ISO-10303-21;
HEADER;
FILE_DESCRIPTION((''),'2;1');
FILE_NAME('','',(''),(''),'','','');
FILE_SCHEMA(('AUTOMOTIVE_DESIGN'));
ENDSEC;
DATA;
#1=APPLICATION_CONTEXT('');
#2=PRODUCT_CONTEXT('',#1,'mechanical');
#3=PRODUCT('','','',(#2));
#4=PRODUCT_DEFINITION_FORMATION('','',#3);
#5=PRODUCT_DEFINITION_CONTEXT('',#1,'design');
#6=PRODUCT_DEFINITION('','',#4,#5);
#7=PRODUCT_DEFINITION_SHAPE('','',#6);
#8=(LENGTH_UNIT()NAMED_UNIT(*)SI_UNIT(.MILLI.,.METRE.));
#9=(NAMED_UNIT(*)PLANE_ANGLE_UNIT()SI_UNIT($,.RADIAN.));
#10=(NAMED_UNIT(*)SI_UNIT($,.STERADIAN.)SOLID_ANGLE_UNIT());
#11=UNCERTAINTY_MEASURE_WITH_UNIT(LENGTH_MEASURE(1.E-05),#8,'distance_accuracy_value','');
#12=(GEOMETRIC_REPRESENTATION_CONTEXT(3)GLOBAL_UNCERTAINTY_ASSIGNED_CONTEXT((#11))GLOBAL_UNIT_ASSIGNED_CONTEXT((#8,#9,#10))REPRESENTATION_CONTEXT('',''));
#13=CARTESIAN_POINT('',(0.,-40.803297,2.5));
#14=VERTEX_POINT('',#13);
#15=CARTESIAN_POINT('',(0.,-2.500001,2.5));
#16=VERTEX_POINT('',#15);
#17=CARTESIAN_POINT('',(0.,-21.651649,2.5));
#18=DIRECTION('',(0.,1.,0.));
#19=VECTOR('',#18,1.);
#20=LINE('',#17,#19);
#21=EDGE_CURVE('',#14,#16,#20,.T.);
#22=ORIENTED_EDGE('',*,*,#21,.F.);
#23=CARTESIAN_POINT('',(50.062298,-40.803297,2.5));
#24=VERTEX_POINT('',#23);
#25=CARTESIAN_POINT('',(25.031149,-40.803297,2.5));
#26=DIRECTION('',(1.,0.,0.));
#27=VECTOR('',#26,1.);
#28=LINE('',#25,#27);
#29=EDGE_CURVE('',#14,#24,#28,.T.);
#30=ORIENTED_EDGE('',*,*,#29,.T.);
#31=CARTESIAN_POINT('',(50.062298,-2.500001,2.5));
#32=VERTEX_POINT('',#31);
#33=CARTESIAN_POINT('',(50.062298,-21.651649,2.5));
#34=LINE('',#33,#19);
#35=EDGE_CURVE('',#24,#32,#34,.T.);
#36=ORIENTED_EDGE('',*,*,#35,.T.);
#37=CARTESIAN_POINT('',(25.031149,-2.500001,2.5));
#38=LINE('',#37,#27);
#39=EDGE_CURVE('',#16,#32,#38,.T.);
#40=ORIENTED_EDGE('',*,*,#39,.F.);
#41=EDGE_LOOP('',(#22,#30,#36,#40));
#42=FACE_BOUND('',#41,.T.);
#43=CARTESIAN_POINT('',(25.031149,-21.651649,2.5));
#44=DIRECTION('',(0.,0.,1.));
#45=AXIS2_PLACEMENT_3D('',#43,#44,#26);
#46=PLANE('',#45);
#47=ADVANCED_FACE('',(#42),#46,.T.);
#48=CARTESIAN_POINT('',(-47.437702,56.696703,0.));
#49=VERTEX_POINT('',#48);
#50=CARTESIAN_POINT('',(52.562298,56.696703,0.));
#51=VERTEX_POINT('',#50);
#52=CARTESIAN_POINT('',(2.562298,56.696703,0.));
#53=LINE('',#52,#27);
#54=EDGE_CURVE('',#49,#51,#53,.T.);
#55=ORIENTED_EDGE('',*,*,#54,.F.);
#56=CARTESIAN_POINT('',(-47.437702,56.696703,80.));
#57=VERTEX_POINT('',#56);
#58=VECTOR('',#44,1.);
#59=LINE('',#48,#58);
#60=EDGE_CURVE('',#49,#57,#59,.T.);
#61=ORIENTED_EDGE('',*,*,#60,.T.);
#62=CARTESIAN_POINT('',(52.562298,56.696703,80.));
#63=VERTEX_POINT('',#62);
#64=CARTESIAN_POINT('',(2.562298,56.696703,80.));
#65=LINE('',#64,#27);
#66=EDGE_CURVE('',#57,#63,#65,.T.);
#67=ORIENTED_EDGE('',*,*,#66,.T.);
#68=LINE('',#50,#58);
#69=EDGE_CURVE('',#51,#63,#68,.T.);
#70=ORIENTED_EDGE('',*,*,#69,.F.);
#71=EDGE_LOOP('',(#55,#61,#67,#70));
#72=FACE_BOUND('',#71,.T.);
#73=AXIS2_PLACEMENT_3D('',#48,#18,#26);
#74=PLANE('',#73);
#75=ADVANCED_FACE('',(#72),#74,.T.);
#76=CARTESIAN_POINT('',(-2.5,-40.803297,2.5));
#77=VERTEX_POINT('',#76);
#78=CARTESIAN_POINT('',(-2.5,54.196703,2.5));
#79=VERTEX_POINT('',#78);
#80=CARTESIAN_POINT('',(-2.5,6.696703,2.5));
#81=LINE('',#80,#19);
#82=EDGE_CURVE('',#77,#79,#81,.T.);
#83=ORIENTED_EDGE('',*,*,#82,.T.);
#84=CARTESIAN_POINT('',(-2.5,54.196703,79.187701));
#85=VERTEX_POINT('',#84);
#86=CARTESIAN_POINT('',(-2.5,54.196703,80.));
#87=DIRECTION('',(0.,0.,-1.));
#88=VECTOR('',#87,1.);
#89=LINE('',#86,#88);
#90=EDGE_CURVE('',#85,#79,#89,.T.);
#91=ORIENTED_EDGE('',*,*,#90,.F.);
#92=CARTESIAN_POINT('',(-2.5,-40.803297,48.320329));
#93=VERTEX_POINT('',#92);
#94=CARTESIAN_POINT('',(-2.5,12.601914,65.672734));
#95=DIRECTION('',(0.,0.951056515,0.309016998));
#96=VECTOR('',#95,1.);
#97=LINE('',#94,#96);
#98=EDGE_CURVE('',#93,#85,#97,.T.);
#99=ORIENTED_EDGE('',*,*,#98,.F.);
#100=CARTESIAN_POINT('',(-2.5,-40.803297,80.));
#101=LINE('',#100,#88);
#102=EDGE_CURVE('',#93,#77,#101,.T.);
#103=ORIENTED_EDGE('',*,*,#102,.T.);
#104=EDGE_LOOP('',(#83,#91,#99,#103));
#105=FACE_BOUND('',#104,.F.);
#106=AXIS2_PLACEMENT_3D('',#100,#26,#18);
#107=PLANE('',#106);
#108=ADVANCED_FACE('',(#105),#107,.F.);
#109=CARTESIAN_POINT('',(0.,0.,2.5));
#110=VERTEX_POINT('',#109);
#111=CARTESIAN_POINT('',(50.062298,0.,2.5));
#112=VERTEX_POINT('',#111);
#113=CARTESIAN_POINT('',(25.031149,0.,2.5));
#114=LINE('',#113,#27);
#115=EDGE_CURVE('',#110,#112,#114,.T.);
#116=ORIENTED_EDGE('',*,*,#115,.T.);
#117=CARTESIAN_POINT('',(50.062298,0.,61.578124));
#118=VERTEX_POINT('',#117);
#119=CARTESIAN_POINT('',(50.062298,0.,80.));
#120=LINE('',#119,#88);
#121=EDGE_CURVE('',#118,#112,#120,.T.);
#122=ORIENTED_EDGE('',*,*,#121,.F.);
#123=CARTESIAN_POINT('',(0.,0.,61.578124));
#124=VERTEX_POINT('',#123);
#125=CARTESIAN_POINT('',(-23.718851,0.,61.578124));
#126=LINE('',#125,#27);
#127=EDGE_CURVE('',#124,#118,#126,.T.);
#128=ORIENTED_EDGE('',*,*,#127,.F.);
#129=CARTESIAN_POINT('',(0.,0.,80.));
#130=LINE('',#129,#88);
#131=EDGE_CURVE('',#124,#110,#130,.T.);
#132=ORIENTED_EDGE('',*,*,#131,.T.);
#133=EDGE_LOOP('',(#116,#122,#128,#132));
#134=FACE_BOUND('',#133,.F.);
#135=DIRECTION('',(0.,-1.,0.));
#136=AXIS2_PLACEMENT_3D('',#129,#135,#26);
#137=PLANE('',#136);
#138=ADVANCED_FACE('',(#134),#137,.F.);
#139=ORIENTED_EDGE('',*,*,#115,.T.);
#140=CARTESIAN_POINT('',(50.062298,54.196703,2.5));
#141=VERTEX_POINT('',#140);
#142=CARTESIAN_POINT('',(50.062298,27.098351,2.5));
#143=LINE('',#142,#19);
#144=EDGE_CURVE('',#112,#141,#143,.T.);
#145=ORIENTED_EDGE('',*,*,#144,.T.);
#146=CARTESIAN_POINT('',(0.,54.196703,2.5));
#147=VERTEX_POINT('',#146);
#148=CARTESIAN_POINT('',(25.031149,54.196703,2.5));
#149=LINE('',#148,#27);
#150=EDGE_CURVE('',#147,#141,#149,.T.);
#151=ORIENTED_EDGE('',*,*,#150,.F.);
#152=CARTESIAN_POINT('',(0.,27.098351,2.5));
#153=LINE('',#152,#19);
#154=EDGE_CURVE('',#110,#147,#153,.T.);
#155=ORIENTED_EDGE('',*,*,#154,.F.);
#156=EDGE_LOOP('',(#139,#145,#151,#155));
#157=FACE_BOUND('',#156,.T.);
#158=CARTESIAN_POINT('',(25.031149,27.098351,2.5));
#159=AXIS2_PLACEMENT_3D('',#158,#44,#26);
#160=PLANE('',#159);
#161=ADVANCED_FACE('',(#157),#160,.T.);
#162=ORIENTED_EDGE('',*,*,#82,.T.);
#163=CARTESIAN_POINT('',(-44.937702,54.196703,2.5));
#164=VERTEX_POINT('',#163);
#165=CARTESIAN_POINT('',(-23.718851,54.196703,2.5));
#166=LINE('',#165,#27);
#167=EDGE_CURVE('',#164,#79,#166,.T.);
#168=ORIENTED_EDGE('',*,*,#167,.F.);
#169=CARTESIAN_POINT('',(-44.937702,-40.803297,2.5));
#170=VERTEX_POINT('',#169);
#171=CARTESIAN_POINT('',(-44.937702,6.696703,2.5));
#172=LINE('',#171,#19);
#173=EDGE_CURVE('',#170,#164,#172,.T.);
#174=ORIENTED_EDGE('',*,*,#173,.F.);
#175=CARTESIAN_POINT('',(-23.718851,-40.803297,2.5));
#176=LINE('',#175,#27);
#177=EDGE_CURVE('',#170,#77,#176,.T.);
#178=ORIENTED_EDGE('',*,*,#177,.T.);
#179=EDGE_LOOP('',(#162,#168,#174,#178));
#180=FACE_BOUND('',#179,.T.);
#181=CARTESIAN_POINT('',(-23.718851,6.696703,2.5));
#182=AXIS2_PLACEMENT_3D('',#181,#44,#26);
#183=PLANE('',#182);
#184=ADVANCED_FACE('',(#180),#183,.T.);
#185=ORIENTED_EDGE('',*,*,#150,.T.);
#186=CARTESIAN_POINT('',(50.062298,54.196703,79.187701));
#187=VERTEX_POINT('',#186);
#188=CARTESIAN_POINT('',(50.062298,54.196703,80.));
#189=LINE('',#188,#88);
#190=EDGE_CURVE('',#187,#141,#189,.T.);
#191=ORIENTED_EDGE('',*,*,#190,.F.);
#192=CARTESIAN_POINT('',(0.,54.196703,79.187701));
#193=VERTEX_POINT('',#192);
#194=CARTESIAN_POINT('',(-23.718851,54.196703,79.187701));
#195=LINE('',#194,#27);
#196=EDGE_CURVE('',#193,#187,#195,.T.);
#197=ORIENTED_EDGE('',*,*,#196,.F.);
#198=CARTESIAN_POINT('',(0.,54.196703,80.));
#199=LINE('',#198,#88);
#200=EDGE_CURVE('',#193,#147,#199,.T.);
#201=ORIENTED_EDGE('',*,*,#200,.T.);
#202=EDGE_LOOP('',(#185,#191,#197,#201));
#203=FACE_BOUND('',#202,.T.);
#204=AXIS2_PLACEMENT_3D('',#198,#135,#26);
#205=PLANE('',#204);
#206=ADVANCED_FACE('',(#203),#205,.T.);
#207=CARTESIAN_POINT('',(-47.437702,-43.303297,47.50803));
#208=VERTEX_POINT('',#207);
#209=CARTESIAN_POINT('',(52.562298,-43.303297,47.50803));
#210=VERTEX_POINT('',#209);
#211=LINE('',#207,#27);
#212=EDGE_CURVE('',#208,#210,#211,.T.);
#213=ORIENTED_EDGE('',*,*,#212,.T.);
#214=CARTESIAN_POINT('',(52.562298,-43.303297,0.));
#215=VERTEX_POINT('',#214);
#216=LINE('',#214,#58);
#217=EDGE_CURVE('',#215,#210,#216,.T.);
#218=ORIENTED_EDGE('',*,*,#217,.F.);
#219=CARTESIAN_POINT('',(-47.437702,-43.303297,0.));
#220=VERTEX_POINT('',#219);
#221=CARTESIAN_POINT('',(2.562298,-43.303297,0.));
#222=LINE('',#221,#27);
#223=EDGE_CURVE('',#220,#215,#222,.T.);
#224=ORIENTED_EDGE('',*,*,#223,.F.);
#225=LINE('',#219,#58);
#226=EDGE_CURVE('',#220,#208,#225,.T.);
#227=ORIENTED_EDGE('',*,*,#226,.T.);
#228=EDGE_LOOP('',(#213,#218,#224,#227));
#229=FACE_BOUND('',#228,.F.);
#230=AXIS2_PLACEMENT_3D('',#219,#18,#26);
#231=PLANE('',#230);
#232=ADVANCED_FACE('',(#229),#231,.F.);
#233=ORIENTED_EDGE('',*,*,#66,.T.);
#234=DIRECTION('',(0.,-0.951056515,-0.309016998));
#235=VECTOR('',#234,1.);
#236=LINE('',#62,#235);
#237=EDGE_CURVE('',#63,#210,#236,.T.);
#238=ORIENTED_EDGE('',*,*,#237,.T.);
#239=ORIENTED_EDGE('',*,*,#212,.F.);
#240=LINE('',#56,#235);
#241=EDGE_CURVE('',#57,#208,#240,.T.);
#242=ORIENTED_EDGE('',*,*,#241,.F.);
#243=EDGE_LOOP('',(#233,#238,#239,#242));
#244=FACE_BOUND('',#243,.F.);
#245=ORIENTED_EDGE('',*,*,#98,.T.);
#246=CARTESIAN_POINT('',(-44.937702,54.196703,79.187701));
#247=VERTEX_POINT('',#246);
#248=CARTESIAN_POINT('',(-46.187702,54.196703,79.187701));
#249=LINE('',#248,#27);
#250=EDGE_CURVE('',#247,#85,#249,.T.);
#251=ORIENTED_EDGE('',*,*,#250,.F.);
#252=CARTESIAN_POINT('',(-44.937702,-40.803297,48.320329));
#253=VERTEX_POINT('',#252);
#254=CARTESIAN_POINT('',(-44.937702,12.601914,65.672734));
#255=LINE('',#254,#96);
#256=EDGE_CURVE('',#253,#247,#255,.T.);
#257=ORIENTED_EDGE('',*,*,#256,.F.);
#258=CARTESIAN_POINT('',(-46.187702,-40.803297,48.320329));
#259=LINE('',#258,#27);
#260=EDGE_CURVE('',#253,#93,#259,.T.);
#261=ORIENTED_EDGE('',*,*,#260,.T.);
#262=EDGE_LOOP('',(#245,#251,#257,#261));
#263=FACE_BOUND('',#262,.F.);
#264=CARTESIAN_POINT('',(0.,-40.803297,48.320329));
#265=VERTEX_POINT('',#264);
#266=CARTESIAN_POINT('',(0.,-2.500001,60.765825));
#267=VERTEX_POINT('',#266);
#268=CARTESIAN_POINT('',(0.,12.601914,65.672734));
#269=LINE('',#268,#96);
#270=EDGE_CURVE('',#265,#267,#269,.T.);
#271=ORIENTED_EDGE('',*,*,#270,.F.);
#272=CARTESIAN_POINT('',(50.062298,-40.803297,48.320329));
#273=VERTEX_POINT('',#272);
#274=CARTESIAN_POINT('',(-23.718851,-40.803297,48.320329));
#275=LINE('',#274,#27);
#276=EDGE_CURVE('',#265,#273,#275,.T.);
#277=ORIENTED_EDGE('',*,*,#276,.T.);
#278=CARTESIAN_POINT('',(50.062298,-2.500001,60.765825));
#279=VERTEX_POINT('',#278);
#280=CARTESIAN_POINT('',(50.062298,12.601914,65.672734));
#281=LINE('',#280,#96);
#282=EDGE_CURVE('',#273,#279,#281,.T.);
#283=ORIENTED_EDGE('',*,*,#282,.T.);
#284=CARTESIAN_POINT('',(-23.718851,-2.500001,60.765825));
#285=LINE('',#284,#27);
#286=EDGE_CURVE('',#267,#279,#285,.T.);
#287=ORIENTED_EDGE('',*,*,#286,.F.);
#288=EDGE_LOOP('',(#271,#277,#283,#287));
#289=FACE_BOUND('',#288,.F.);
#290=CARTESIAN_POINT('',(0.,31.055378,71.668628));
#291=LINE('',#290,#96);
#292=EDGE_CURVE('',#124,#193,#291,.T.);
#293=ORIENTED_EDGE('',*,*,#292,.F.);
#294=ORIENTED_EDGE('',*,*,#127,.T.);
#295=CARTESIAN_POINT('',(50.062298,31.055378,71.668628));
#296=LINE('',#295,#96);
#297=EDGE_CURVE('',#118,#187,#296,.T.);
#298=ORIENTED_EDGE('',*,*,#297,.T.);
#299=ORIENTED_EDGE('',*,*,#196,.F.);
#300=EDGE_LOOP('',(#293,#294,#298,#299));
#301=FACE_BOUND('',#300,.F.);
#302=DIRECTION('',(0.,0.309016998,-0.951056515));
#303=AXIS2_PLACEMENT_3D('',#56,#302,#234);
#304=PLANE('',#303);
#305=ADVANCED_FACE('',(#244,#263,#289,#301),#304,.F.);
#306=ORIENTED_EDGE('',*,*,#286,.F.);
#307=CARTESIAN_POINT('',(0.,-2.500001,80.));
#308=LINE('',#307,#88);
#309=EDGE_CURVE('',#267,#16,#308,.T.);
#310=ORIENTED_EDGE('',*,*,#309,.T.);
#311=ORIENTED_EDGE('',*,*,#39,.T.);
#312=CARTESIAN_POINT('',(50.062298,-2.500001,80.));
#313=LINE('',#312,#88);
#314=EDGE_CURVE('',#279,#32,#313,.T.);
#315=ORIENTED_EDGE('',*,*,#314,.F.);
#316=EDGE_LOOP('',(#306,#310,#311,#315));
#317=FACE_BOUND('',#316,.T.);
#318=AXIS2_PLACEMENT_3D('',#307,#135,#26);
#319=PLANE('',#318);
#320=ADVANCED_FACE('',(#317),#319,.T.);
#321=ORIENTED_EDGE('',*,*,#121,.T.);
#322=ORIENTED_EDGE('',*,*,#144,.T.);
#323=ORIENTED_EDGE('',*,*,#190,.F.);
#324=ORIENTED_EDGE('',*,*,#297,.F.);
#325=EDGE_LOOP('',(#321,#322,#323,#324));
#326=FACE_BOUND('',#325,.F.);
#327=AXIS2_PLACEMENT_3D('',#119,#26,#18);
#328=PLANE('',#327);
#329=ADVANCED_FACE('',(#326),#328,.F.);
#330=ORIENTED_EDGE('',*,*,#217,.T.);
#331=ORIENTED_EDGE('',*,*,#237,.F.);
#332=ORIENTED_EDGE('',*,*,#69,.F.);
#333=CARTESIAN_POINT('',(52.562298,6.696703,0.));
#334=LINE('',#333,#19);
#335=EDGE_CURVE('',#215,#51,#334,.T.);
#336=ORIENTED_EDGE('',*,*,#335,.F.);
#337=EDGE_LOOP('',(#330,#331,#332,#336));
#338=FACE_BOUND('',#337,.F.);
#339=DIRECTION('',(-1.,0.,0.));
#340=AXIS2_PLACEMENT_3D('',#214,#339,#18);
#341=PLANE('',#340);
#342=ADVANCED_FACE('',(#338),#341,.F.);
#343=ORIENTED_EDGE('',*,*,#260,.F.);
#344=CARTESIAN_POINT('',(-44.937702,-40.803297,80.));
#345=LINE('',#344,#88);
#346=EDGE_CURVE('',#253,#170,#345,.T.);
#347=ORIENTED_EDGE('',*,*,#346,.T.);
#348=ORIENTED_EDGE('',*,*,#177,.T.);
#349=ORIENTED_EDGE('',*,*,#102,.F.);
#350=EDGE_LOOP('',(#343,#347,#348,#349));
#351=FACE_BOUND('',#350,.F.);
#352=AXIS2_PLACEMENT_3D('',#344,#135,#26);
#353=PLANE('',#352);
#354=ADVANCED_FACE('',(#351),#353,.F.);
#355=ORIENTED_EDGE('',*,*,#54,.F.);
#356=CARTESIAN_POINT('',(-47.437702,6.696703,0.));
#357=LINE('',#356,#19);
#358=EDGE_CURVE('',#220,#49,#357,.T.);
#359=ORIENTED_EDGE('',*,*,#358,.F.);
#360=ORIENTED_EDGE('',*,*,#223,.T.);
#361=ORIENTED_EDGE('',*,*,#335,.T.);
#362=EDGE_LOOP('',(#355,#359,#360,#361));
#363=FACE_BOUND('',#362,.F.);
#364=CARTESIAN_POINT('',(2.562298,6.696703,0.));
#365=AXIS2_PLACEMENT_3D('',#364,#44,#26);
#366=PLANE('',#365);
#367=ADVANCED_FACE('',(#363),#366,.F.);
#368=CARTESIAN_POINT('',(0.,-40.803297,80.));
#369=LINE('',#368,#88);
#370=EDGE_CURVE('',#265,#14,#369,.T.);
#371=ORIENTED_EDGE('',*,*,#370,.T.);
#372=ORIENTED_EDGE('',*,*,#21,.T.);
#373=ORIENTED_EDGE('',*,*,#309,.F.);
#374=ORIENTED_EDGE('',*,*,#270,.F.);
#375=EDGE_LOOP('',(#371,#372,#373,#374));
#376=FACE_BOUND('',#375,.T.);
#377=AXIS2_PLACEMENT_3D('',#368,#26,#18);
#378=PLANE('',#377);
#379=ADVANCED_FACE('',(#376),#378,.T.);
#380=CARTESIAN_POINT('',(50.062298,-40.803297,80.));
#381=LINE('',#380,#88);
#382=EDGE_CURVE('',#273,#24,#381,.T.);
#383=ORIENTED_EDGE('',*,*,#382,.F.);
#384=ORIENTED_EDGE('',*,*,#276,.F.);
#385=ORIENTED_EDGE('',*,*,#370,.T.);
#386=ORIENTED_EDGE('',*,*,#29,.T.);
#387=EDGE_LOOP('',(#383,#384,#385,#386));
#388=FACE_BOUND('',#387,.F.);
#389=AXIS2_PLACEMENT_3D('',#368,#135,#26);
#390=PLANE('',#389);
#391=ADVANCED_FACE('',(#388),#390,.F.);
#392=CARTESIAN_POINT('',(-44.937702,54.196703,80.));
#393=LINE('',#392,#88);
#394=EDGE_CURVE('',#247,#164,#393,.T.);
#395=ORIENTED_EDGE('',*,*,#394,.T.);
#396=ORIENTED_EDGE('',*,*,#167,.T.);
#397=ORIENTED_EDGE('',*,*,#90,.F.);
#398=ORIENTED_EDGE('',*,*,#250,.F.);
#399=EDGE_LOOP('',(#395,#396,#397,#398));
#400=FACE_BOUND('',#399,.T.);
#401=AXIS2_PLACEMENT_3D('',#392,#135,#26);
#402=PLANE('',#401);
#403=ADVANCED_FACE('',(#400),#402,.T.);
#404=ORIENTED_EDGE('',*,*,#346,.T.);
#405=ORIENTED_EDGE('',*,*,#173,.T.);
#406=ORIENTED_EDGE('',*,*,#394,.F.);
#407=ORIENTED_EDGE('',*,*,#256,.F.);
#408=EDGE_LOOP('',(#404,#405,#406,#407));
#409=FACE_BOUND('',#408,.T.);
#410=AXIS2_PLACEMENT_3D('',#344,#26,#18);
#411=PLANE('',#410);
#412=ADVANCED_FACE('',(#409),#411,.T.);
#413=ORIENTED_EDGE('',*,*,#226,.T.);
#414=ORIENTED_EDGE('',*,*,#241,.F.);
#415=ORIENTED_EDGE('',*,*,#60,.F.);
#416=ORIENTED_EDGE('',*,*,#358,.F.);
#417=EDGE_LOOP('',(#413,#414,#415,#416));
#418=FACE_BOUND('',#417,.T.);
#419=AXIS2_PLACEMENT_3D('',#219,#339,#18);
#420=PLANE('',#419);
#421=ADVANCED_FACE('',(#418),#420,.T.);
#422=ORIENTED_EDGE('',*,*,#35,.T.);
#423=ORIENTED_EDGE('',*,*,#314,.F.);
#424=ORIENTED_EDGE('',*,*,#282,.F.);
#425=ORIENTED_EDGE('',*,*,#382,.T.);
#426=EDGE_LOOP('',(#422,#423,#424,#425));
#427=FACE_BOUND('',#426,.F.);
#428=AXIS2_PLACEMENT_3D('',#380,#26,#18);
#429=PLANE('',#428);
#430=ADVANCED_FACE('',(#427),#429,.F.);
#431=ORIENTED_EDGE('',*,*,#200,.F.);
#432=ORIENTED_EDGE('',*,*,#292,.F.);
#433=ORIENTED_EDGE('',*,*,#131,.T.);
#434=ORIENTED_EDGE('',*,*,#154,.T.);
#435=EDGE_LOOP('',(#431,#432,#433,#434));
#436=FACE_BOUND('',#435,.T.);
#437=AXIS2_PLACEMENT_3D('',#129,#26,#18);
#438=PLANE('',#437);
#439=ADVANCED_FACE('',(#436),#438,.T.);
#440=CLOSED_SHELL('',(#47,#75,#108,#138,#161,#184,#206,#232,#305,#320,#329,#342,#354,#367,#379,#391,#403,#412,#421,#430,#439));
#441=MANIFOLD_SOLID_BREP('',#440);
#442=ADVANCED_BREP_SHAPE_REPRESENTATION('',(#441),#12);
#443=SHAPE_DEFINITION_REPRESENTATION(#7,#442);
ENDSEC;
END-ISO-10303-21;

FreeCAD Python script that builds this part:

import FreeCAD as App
import Part
import Sketcher
from FreeCAD import Vector
Q = App.Units.Quantity

doc = App.newDocument("Part")
params = doc.addObject("Spreadsheet::Sheet", "Params")
for row, (alias, value) in enumerate([
    ("sketch1_width", "100 mm"),
    ("pad1_length", "80 mm"),
    ("sketch2_height", "95 mm"),
    ("pocket1_length", "77.5 mm"),
    ("sketch3_width", "100 mm"),
    ("pocket2_length", "100 mm"),
], start=1):
    params.set(f"A{row}", alias)
    params.set(f"B{row}", "=" + value)
    params.setAlias(f"B{row}", alias)

body = doc.addObject("PartDesign::Body", "Body")

sketch1 = doc.addObject("Sketcher::SketchObject", "Sketch")
body.addObject(sketch1)
sketch1.AttachmentSupport = (doc.XY_Plane, [""])
sketch1.MapMode = "FlatFace"
sketch1.addGeometry([
    Part.LineSegment(Vector(-47, 57, 0), Vector(-47, -43, 0)),
    Part.LineSegment(Vector(-47, -43, 0), Vector(53, -43, 0)),
    Part.LineSegment(Vector(53, -43, 0), Vector(53, 57, 0)),
    Part.LineSegment(Vector(53, 57, 0), Vector(-47, 57, 0)),
], False)
sketch1.addConstraint([
    Sketcher.Constraint("Coincident", 0, 2, 1, 1),
    Sketcher.Constraint("Coincident", 1, 2, 2, 1),
    Sketcher.Constraint("Coincident", 2, 2, 3, 1),
    Sketcher.Constraint("Coincident", 3, 2, 0, 1),
    Sketcher.Constraint("Vertical", 0),
    Sketcher.Constraint("Horizontal", 1),
    Sketcher.Constraint("Vertical", 2),
    Sketcher.Constraint("Horizontal", 3),
    Sketcher.Constraint("Equal", 3, 0),
    Sketcher.Constraint("DistanceX", 1, 1, 1, 2, 100.0),
    Sketcher.Constraint("DistanceX", 0, 2, -1, 1, 47.437702),
    Sketcher.Constraint("DistanceY", 0, 2, -1, 1, 43.303297),
])
sketch1.setExpression("Constraints[9]", "Params.sketch1_width")
pad1 = doc.addObject("PartDesign::Pad", "Pad")
body.addObject(pad1)
pad1.Profile = sketch1
pad1.setExpression("Length", "Params.pad1_length")

sketch2 = doc.addObject("Sketcher::SketchObject", "Sketch001")
body.addObject(sketch2)
sketch2.AttachmentSupport = (doc.XY_Plane, [""])
sketch2.MapMode = "FlatFace"
sketch2.AttachmentOffset = App.Placement(Vector(0, 0, 80), App.Rotation())
sketch2.addGeometry([
    Part.LineSegment(Vector(-45, 54, 0), Vector(-45, -41, 0)),
    Part.LineSegment(Vector(-45, -41, 0), Vector(-2, -41, 0)),
    Part.LineSegment(Vector(-2, -41, 0), Vector(-2, 54, 0)),
    Part.LineSegment(Vector(-2, 54, 0), Vector(-45, 54, 0)),
    Part.LineSegment(Vector(0, 54, 0), Vector(0, 0, 0)),
    Part.LineSegment(Vector(0, 0, 0), Vector(50, 0, 0)),
    Part.LineSegment(Vector(50, 0, 0), Vector(50, 54, 0)),
    Part.LineSegment(Vector(50, 54, 0), Vector(0, 54, 0)),
    Part.LineSegment(Vector(0, -3, 0), Vector(0, -41, 0)),
    Part.LineSegment(Vector(0, -41, 0), Vector(50, -41, 0)),
    Part.LineSegment(Vector(50, -41, 0), Vector(50, -3, 0)),
    Part.LineSegment(Vector(50, -3, 0), Vector(0, -3, 0)),
], False)
sketch2.addConstraint([
    Sketcher.Constraint("Coincident", 0, 2, 1, 1),
    Sketcher.Constraint("Coincident", 1, 2, 2, 1),
    Sketcher.Constraint("Coincident", 2, 2, 3, 1),
    Sketcher.Constraint("Coincident", 3, 2, 0, 1),
    Sketcher.Constraint("Coincident", 4, 2, 5, 1),
    Sketcher.Constraint("Coincident", 5, 2, 6, 1),
    Sketcher.Constraint("Coincident", 6, 2, 7, 1),
    Sketcher.Constraint("Coincident", 7, 2, 4, 1),
    Sketcher.Constraint("Coincident", 8, 2, 9, 1),
    Sketcher.Constraint("Coincident", 9, 2, 10, 1),
    Sketcher.Constraint("Coincident", 10, 2, 11, 1),
    Sketcher.Constraint("Coincident", 11, 2, 8, 1),
    Sketcher.Constraint("Vertical", 0),
    Sketcher.Constraint("Horizontal", 1),
    Sketcher.Constraint("Vertical", 2),
    Sketcher.Constraint("Horizontal", 3),
    Sketcher.Constraint("Vertical", 4),
    Sketcher.Constraint("Horizontal", 5),
    Sketcher.Constraint("Vertical", 6),
    Sketcher.Constraint("Horizontal", 7),
    Sketcher.Constraint("Vertical", 8),
    Sketcher.Constraint("Horizontal", 9),
    Sketcher.Constraint("Vertical", 10),
    Sketcher.Constraint("Horizontal", 11),
    Sketcher.Constraint("Coincident", 4, 2, -1, 1),
    Sketcher.Constraint("PointOnObject", 8, 2, -2),
    Sketcher.Constraint("Horizontal", 3, 2, 6, 2),
    Sketcher.Constraint("Horizontal", 1, 2, 8, 2),
    Sketcher.Constraint("Vertical", 6, 2, 9, 2),
    Sketcher.Constraint("DistanceY", 0, 2, 0, 1, 95.0),
    Sketcher.Constraint("DistanceX", 0, 2, 5, 2, 95.0),
    Sketcher.Constraint("DistanceX", 1, 2, -1, 1, 2.5),
    Sketcher.Constraint("DistanceY", 10, 2, -1, 1, 2.500001),
    Sketcher.Constraint("DistanceX", 1, 1, 1, 2, 42.437702),
    Sketcher.Constraint("DistanceY", 4, 2, 4, 1, 54.196703),
])
sketch2.setExpression("Constraints[29]", "Params.sketch2_height")
pocket1 = doc.addObject("PartDesign::Pocket", "Pocket")
body.addObject(pocket1)
pocket1.Profile = sketch2
pocket1.setExpression("Length", "Params.pocket1_length")

sketch3 = doc.addObject("Sketcher::SketchObject", "Sketch002")
body.addObject(sketch3)
sketch3.AttachmentSupport = (doc.YZ_Plane, [""])
sketch3.MapMode = "FlatFace"
sketch3.AttachmentOffset = App.Placement(Vector(0, 0, -47.437702), App.Rotation())
sketch3.addGeometry([
    Part.LineSegment(Vector(-43, 80, 0), Vector(57, 80, 0)),
    Part.LineSegment(Vector(57, 80, 0), Vector(-43, 48, 0)),
    Part.LineSegment(Vector(-43, 48, 0), Vector(-43, 80, 0)),
], False)
sketch3.addConstraint([
    Sketcher.Constraint("Coincident", 0, 2, 1, 1),
    Sketcher.Constraint("Coincident", 1, 2, 2, 1),
    Sketcher.Constraint("Coincident", 2, 2, 0, 1),
    Sketcher.Constraint("Horizontal", 0),
    Sketcher.Constraint("Vertical", 2),
    Sketcher.Constraint("DistanceX", 0, 1, 0, 2, 100.0),
    Sketcher.Constraint("Angle", 1, Q("-162 deg")),
    Sketcher.Constraint("DistanceY", -1, 1, 0, 2, 80.0),
    Sketcher.Constraint("DistanceX", -1, 1, 0, 2, 56.696703),
])
sketch3.setExpression("Constraints[5]", "Params.sketch3_width")
pocket2 = doc.addObject("PartDesign::Pocket", "Pocket001")
body.addObject(pocket2)
pocket2.Profile = sketch3
pocket2.setExpression("Length", "Params.pocket2_length")
pocket2.Reversed = True

doc.recompute()
